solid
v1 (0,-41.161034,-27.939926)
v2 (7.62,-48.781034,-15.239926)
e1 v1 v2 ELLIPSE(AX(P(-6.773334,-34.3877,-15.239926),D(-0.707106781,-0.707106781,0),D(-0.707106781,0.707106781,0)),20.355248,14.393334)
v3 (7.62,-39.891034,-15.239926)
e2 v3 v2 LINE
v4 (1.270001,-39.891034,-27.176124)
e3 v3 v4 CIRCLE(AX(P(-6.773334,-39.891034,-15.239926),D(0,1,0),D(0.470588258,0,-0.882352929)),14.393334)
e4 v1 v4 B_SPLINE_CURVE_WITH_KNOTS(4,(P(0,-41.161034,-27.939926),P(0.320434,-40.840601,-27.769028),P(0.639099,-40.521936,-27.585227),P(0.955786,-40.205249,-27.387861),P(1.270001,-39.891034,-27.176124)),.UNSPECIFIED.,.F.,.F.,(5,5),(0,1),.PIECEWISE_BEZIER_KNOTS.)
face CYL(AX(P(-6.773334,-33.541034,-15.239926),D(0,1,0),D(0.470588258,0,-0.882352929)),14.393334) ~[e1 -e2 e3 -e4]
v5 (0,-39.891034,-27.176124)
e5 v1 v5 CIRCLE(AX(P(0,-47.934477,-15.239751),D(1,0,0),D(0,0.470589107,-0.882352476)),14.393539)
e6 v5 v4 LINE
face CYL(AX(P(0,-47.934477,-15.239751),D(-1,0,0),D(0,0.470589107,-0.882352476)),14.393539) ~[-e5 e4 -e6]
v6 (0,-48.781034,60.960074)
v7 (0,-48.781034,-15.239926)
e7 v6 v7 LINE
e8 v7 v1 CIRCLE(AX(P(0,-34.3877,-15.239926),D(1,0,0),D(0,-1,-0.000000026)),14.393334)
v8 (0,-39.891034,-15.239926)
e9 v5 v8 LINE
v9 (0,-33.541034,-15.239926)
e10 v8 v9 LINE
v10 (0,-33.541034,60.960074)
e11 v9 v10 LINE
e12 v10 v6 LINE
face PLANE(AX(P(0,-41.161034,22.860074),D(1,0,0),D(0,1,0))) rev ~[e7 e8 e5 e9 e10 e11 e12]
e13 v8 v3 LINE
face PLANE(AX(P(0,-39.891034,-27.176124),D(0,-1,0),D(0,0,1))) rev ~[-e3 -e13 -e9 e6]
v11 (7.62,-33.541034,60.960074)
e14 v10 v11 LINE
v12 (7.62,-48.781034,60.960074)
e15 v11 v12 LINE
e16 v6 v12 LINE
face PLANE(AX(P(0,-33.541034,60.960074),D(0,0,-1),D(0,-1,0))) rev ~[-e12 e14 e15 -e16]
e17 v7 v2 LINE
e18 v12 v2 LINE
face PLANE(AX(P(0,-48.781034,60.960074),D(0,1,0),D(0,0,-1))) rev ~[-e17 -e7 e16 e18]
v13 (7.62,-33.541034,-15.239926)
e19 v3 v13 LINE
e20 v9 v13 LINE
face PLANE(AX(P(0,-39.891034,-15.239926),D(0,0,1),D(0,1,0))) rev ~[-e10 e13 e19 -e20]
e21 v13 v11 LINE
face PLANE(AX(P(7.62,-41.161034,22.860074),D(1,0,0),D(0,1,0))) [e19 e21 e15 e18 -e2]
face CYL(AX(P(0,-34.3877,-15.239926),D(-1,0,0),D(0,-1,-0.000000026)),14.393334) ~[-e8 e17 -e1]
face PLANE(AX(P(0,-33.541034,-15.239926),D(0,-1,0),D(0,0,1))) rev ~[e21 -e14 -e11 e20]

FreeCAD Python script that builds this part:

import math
import FreeCAD as App
import Part
import Sketcher

V = App.Vector
Q = App.Units.Quantity

doc = App.newDocument("Part")
body = doc.addObject("PartDesign::Body", "Body")

# Sketch on YZ plane
sketch1 = body.newObject("Sketcher::SketchObject", "Sketch")
sketch1.AttachmentSupport = (doc.getObject("YZ_Plane"), [""])
sketch1.MapMode = "FlatFace"
sketch1.addGeometry([
    Part.LineSegment(V(-33.5, 61, 0), V(-48.8, 61, 0)),  # 0
    Part.LineSegment(V(-48.8, 61, 0), V(-48.8, -15.2, 0)),  # 1
    Part.ArcOfCircle(Part.Circle(V(-34.4, -15.2, 0), V(0, 0, 1), 14.4), math.radians(-180), math.radians(-118)),  # 2
    Part.ArcOfCircle(Part.Circle(V(-47.9, -15.2, 0), V(0, 0, 1), 14.4), math.radians(-61.93), math.radians(-56.03)),  # 3
    Part.LineSegment(V(-39.9, -27.2, 0), V(-39.9, -15.2, 0)),  # 4
    Part.LineSegment(V(-39.9, -15.2, 0), V(-33.5, -15.2, 0)),  # 5
    Part.LineSegment(V(-33.5, -15.2, 0), V(-33.5, 61, 0)),  # 6
], False)
sketch1.addConstraint([
    Sketcher.Constraint("Coincident", 0, 2, 1, 1),
    Sketcher.Constraint("Tangent", 1, 2, 2, 1),
    Sketcher.Constraint("Coincident", 2, 2, 3, 1),
    Sketcher.Constraint("Coincident", 3, 2, 4, 1),
    Sketcher.Constraint("Coincident", 4, 2, 5, 1),
    Sketcher.Constraint("Coincident", 5, 2, 6, 1),
    Sketcher.Constraint("Coincident", 6, 2, 0, 1),
    Sketcher.Constraint("Horizontal", 0),
    Sketcher.Constraint("Vertical", 1),
    Sketcher.Constraint("Vertical", 4),
    Sketcher.Constraint("Horizontal", 5),
    Sketcher.Constraint("Vertical", 6),
    Sketcher.Constraint("Horizontal", 1, 2, 4, 2),
    Sketcher.Constraint("DistanceY", 1, 2, 1, 1, Q("3 in")),
    Sketcher.Constraint("DistanceX", 0, 2, 0, 1, Q("0.6 in")),
    Sketcher.Constraint("DistanceX", 5, 1, 5, 2, Q("0.25 in")),
    Sketcher.Constraint("DistanceY", 2, 2, 2, 3, Q("0.5 in")),
    Sketcher.Constraint("DistanceX", 1, 2, 2, 2, Q("0.3 in")),
    Sketcher.Constraint("Radius", 3, 14.393539),
    Sketcher.Constraint("DistanceY", 4, 1, 4, 2, 11.936198),
    Sketcher.Constraint("DistanceX", 2, 3, -1, 1, 34.3877),
    Sketcher.Constraint("DistanceY", 3, 3, -1, 1, 15.239751),
])
pad1 = body.newObject("PartDesign::Pad", "Pad")
pad1.Profile = sketch1
pad1.Length = Q("0.3 in")

# Sketch on XZ plane
sketch2 = body.newObject("Sketcher::SketchObject", "Sketch001")
sketch2.AttachmentSupport = (doc.getObject("XZ_Plane"), [""])
sketch2.MapMode = "FlatFace"
sketch2.AttachmentOffset = App.Placement(V(0, 0, 33.541034), App.Rotation())
sketch2.addGeometry([
    Part.ArcOfCircle(Part.Circle(V(-7, -15, 0), V(0, 0, 1), 14), math.radians(-62), math.radians(0)),
    Part.LineSegment(V(8, -15, 0), V(8, -28, 0)),
    Part.LineSegment(V(8, -28, 0), V(0, -28, 0)),
], False)
sketch2.addConstraint([
    Sketcher.Constraint("Tangent", 0, 2, 1, 1),
    Sketcher.Constraint("Coincident", 1, 2, 2, 1),
    Sketcher.Constraint("Coincident", 2, 2, 0, 1),
    Sketcher.Constraint("Vertical", 1),
    Sketcher.Constraint("Horizontal", 2),
    Sketcher.Constraint("PointOnObject", 2, 2, -2),
    Sketcher.Constraint("DistanceX", 2, 2, 2, 1, Q("0.3 in")),
    Sketcher.Constraint("DistanceY", 1, 2, 1, 1, Q("0.5 in")),
    Sketcher.Constraint("DistanceY", 0, 3, -1, 1, 15.239926),
])
pocket1 = body.newObject("PartDesign::Pocket", "Pocket")
pocket1.Profile = sketch2
pocket1.Length = Q("1 in")
pocket1.Reversed = True

doc.recompute()
